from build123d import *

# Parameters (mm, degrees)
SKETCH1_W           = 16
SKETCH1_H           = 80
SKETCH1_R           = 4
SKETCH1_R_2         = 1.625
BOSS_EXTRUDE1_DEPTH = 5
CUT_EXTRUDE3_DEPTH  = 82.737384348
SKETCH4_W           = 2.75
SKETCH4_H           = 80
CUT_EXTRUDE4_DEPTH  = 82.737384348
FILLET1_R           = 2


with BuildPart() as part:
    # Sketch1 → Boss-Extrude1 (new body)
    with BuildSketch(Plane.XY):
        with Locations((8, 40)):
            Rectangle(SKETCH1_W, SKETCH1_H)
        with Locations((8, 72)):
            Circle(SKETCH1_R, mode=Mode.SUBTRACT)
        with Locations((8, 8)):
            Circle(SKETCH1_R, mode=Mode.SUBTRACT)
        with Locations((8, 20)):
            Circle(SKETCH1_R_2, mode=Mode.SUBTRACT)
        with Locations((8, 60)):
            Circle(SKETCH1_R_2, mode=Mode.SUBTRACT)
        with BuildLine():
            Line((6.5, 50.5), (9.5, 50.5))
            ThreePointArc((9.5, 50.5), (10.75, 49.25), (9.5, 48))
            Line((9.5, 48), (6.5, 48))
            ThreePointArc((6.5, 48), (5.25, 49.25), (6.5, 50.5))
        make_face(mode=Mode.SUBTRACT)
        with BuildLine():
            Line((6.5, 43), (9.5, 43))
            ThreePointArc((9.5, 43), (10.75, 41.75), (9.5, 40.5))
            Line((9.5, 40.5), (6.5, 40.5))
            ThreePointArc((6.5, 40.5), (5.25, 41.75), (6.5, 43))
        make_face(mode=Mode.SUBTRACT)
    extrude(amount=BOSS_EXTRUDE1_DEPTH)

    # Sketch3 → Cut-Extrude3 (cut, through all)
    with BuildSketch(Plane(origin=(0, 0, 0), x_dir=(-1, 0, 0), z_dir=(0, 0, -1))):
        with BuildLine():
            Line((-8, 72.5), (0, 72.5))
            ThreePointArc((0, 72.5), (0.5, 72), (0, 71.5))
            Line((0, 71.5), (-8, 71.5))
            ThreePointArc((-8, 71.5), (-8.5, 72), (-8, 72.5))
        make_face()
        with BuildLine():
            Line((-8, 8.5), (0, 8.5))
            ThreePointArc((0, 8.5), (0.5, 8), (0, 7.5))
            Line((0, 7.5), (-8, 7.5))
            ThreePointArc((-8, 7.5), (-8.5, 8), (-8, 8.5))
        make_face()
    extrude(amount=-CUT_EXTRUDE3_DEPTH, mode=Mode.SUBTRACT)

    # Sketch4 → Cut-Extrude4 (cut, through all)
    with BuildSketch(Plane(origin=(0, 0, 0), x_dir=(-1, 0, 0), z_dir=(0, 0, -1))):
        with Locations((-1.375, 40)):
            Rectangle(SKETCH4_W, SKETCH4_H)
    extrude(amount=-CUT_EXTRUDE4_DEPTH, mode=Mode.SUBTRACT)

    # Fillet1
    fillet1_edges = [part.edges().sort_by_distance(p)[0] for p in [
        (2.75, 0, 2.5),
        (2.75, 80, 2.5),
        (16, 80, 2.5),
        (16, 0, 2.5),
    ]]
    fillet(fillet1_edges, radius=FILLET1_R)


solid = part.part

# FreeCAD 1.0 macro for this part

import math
import FreeCAD as App
import Part
import Sketcher
from FreeCAD import Vector


def edges_at(feature, points):
    """Names of the edges that pass closest to the given points."""
    edges = feature.Shape.Edges
    near = lambda p: min(range(len(edges)), key=lambda i: edges[i].distToShape(Part.Vertex(*p))[0])
    return sorted({f"Edge{near(p) + 1}" for p in points})

doc = App.newDocument("Part")
body = doc.addObject("PartDesign::Body", "Body")

# Sketch on XY plane
sketch1 = doc.addObject("Sketcher::SketchObject", "Sketch")
body.addObject(sketch1)
sketch1.AttachmentSupport = (doc.XY_Plane, [""])
sketch1.MapMode = "FlatFace"
sketch1.addGeometry([
    Part.LineSegment(Vector(0, 80, 0), Vector(0, 0, 0)),  # 0
    Part.LineSegment(Vector(0, 0, 0), Vector(16, 0, 0)),  # 1
    Part.LineSegment(Vector(16, 0, 0), Vector(16, 80, 0)),  # 2
    Part.LineSegment(Vector(16, 80, 0), Vector(0, 80, 0)),  # 3
    Part.Circle(Vector(8, 8, 0), Vector(0, 0, 1), 4),  # 4
    Part.Circle(Vector(8, 20, 0), Vector(0, 0, 1), 1.6),  # 5
    Part.ArcOfCircle(Part.Circle(Vector(6.5, 41.8, 0), Vector(0, 0, 1), 1.2), math.radians(90), math.radians(270)),  # 6
    Part.LineSegment(Vector(6.5, 43, 0), Vector(9.5, 43, 0)),  # 7
    Part.ArcOfCircle(Part.Circle(Vector(9.5, 41.8, 0), Vector(0, 0, 1), 1.2), math.radians(-90), math.radians(90)),  # 8
    Part.LineSegment(Vector(9.5, 40.5, 0), Vector(6.5, 40.5, 0)),  # 9
    Part.ArcOfCircle(Part.Circle(Vector(6.5, 49.2, 0), Vector(0, 0, 1), 1.2), math.radians(90), math.radians(270)),  # 10
    Part.LineSegment(Vector(6.5, 50.5, 0), Vector(9.5, 50.5, 0)),  # 11
    Part.ArcOfCircle(Part.Circle(Vector(9.5, 49.2, 0), Vector(0, 0, 1), 1.2), math.radians(-90), math.radians(90)),  # 12
    Part.LineSegment(Vector(9.5, 48, 0), Vector(6.5, 48, 0)),  # 13
    Part.Circle(Vector(8, 60, 0), Vector(0, 0, 1), 1.6),  # 14
    Part.Circle(Vector(8, 72, 0), Vector(0, 0, 1), 4),  # 15
], False)
sketch1.addConstraint([
    Sketcher.Constraint("Coincident", 0, 2, 1, 1),
    Sketcher.Constraint("Coincident", 1, 2, 2, 1),
    Sketcher.Constraint("Coincident", 2, 2, 3, 1),
    Sketcher.Constraint("Coincident", 3, 2, 0, 1),
    Sketcher.Constraint("Tangent", 6, 1, 7, 1),
    Sketcher.Constraint("Tangent", 7, 2, 8, 2),
    Sketcher.Constraint("Tangent", 8, 1, 9, 1),
    Sketcher.Constraint("Tangent", 9, 2, 6, 2),
    Sketcher.Constraint("Tangent", 10, 1, 11, 1),
    Sketcher.Constraint("Tangent", 11, 2, 12, 2),
    Sketcher.Constraint("Tangent", 12, 1, 13, 1),
    Sketcher.Constraint("Tangent", 13, 2, 10, 2),
    Sketcher.Constraint("Vertical", 0),
    Sketcher.Constraint("Horizontal", 1),
    Sketcher.Constraint("Vertical", 2),
    Sketcher.Constraint("Horizontal", 3),
    Sketcher.Constraint("Horizontal", 7),
    Sketcher.Constraint("Horizontal", 9),
    Sketcher.Constraint("Horizontal", 11),
    Sketcher.Constraint("Horizontal", 13),
    Sketcher.Constraint("Coincident", 0, 2, -1, 1),
    Sketcher.Constraint("Equal", 8, 10),
    Sketcher.Constraint("Equal", 5, 14),
    Sketcher.Constraint("Equal", 4, 15),
    Sketcher.Constraint("Vertical", 4, 3, 5, 3),
    Sketcher.Constraint("Vertical", 6, 3, 10, 3),
    Sketcher.Constraint("Vertical", 8, 3, 12, 3),
    Sketcher.Constraint("Vertical", 5, 3, 14, 3),
    Sketcher.Constraint("Vertical", 14, 3, 15, 3),
    Sketcher.Constraint("Diameter", 4, 8.0),
    Sketcher.Constraint("Diameter", 5, 3.25),
    Sketcher.Constraint("DistanceX", 1, 1, 1, 2, 16.0),
    Sketcher.Constraint("DistanceX", 7, 1, 7, 2, 3.0),
    Sketcher.Constraint("DistanceY", 0, 2, 0, 1, 80.0),
    Sketcher.Constraint("Radius", 6, 1.25),
    Sketcher.Constraint("DistanceX", -1, 1, 4, 3, 8.0),
    Sketcher.Constraint("DistanceY", -1, 1, 4, 3, 8.0),
    Sketcher.Constraint("DistanceY", -1, 1, 5, 3, 20.0),
    Sketcher.Constraint("DistanceY", -1, 1, 14, 3, 60.0),
    Sketcher.Constraint("DistanceY", -1, 1, 15, 3, 72.0),
    Sketcher.Constraint("DistanceY", -1, 1, 6, 1, 43.0),
    Sketcher.Constraint("DistanceY", -1, 1, 12, 1, 48.0),
    Sketcher.Constraint("DistanceX", -1, 1, 6, 3, 6.5),
])
pad1 = doc.addObject("PartDesign::Pad", "Pad")
body.addObject(pad1)
pad1.Profile = sketch1
pad1.Length = 5

# Sketch on XY plane
sketch2 = doc.addObject("Sketcher::SketchObject", "Sketch001")
body.addObject(sketch2)
sketch2.AttachmentSupport = (doc.XY_Plane, [""])
sketch2.MapMode = "FlatFace"
sketch2.addGeometry([
    Part.LineSegment(Vector(0, 72.5, 0), Vector(8, 72.5, 0)),  # 0
    Part.ArcOfCircle(Part.Circle(Vector(8, 72, 0), Vector(0, 0, 1), 0.5), math.radians(-90), math.radians(90)),  # 1
    Part.LineSegment(Vector(8, 71.5, 0), Vector(0, 71.5, 0)),  # 2
    Part.ArcOfCircle(Part.Circle(Vector(0, 72, 0), Vector(0, 0, 1), 0.5), math.radians(90), math.radians(270)),  # 3
    Part.LineSegment(Vector(0, 8.5, 0), Vector(8, 8.5, 0)),  # 4
    Part.ArcOfCircle(Part.Circle(Vector(8, 8, 0), Vector(0, 0, 1), 0.5), math.radians(-90), math.radians(90)),  # 5
    Part.LineSegment(Vector(8, 7.5, 0), Vector(0, 7.5, 0)),  # 6
    Part.ArcOfCircle(Part.Circle(Vector(0, 8, 0), Vector(0, 0, 1), 0.5), math.radians(90), math.radians(270)),  # 7
], False)
sketch2.addConstraint([
    Sketcher.Constraint("Tangent", 0, 2, 1, 2),
    Sketcher.Constraint("Tangent", 1, 1, 2, 1),
    Sketcher.Constraint("Tangent", 2, 2, 3, 2),
    Sketcher.Constraint("Tangent", 3, 1, 0, 1),
    Sketcher.Constraint("Tangent", 4, 2, 5, 2),
    Sketcher.Constraint("Tangent", 5, 1, 6, 1),
    Sketcher.Constraint("Tangent", 6, 2, 7, 2),
    Sketcher.Constraint("Tangent", 7, 1, 4, 1),
    Sketcher.Constraint("Horizontal", 0),
    Sketcher.Constraint("Horizontal", 2),
    Sketcher.Constraint("Horizontal", 4),
    Sketcher.Constraint("Horizontal", 6),
    Sketcher.Constraint("Equal", 3, 5),
    Sketcher.Constraint("PointOnObject", 3, 3, -2),
    Sketcher.Constraint("PointOnObject", 7, 3, -2),
    Sketcher.Constraint("Vertical", 1, 3, 5, 3),
    Sketcher.Constraint("Radius", 1, 0.5),
    Sketcher.Constraint("DistanceX", 0, 1, 0, 2, 8.0),
    Sketcher.Constraint("DistanceY", -1, 1, 1, 3, 72.0),
    Sketcher.Constraint("DistanceY", -1, 1, 5, 3, 8.0),
])
pocket1 = doc.addObject("PartDesign::Pocket", "Pocket")
body.addObject(pocket1)
pocket1.Profile = sketch2
pocket1.Type = "ThroughAll"
pocket1.Reversed = True

# Sketch on XY plane
sketch3 = doc.addObject("Sketcher::SketchObject", "Sketch002")
body.addObject(sketch3)
sketch3.AttachmentSupport = (doc.XY_Plane, [""])
sketch3.MapMode = "FlatFace"
sketch3.addGeometry([
    Part.LineSegment(Vector(2.8, 80, 0), Vector(2.8, 0, 0)),
    Part.LineSegment(Vector(2.8, 0, 0), Vector(0, 0, 0)),
    Part.LineSegment(Vector(0, 0, 0), Vector(0, 80, 0)),
    Part.LineSegment(Vector(0, 80, 0), Vector(2.8, 80, 0)),
], False)
sketch3.addConstraint([
    Sketcher.Constraint("Coincident", 0, 2, 1, 1),
    Sketcher.Constraint("Coincident", 1, 2, 2, 1),
    Sketcher.Constraint("Coincident", 2, 2, 3, 1),
    Sketcher.Constraint("Coincident", 3, 2, 0, 1),
    Sketcher.Constraint("Vertical", 0),
    Sketcher.Constraint("Horizontal", 1),
    Sketcher.Constraint("Vertical", 2),
    Sketcher.Constraint("Horizontal", 3),
    Sketcher.Constraint("Coincident", 1, 2, -1, 1),
    Sketcher.Constraint("DistanceY", 0, 2, 0, 1, 80.0),
    Sketcher.Constraint("DistanceX", 1, 2, 1, 1, 2.75),
])
pocket2 = doc.addObject("PartDesign::Pocket", "Pocket001")
body.addObject(pocket2)
pocket2.Profile = sketch3
pocket2.Type = "ThroughAll"
pocket2.Reversed = True
doc.recompute()

fillet = doc.addObject("PartDesign::Fillet", "Fillet")
body.addObject(fillet)
fillet.Base = (pocket2, edges_at(pocket2, [
    (2.75, 0, 2.5),
    (2.75, 80, 2.5),
    (16, 80, 2.5),
    (16, 0, 2.5),
]))
fillet.Radius = 2

doc.recompute()
